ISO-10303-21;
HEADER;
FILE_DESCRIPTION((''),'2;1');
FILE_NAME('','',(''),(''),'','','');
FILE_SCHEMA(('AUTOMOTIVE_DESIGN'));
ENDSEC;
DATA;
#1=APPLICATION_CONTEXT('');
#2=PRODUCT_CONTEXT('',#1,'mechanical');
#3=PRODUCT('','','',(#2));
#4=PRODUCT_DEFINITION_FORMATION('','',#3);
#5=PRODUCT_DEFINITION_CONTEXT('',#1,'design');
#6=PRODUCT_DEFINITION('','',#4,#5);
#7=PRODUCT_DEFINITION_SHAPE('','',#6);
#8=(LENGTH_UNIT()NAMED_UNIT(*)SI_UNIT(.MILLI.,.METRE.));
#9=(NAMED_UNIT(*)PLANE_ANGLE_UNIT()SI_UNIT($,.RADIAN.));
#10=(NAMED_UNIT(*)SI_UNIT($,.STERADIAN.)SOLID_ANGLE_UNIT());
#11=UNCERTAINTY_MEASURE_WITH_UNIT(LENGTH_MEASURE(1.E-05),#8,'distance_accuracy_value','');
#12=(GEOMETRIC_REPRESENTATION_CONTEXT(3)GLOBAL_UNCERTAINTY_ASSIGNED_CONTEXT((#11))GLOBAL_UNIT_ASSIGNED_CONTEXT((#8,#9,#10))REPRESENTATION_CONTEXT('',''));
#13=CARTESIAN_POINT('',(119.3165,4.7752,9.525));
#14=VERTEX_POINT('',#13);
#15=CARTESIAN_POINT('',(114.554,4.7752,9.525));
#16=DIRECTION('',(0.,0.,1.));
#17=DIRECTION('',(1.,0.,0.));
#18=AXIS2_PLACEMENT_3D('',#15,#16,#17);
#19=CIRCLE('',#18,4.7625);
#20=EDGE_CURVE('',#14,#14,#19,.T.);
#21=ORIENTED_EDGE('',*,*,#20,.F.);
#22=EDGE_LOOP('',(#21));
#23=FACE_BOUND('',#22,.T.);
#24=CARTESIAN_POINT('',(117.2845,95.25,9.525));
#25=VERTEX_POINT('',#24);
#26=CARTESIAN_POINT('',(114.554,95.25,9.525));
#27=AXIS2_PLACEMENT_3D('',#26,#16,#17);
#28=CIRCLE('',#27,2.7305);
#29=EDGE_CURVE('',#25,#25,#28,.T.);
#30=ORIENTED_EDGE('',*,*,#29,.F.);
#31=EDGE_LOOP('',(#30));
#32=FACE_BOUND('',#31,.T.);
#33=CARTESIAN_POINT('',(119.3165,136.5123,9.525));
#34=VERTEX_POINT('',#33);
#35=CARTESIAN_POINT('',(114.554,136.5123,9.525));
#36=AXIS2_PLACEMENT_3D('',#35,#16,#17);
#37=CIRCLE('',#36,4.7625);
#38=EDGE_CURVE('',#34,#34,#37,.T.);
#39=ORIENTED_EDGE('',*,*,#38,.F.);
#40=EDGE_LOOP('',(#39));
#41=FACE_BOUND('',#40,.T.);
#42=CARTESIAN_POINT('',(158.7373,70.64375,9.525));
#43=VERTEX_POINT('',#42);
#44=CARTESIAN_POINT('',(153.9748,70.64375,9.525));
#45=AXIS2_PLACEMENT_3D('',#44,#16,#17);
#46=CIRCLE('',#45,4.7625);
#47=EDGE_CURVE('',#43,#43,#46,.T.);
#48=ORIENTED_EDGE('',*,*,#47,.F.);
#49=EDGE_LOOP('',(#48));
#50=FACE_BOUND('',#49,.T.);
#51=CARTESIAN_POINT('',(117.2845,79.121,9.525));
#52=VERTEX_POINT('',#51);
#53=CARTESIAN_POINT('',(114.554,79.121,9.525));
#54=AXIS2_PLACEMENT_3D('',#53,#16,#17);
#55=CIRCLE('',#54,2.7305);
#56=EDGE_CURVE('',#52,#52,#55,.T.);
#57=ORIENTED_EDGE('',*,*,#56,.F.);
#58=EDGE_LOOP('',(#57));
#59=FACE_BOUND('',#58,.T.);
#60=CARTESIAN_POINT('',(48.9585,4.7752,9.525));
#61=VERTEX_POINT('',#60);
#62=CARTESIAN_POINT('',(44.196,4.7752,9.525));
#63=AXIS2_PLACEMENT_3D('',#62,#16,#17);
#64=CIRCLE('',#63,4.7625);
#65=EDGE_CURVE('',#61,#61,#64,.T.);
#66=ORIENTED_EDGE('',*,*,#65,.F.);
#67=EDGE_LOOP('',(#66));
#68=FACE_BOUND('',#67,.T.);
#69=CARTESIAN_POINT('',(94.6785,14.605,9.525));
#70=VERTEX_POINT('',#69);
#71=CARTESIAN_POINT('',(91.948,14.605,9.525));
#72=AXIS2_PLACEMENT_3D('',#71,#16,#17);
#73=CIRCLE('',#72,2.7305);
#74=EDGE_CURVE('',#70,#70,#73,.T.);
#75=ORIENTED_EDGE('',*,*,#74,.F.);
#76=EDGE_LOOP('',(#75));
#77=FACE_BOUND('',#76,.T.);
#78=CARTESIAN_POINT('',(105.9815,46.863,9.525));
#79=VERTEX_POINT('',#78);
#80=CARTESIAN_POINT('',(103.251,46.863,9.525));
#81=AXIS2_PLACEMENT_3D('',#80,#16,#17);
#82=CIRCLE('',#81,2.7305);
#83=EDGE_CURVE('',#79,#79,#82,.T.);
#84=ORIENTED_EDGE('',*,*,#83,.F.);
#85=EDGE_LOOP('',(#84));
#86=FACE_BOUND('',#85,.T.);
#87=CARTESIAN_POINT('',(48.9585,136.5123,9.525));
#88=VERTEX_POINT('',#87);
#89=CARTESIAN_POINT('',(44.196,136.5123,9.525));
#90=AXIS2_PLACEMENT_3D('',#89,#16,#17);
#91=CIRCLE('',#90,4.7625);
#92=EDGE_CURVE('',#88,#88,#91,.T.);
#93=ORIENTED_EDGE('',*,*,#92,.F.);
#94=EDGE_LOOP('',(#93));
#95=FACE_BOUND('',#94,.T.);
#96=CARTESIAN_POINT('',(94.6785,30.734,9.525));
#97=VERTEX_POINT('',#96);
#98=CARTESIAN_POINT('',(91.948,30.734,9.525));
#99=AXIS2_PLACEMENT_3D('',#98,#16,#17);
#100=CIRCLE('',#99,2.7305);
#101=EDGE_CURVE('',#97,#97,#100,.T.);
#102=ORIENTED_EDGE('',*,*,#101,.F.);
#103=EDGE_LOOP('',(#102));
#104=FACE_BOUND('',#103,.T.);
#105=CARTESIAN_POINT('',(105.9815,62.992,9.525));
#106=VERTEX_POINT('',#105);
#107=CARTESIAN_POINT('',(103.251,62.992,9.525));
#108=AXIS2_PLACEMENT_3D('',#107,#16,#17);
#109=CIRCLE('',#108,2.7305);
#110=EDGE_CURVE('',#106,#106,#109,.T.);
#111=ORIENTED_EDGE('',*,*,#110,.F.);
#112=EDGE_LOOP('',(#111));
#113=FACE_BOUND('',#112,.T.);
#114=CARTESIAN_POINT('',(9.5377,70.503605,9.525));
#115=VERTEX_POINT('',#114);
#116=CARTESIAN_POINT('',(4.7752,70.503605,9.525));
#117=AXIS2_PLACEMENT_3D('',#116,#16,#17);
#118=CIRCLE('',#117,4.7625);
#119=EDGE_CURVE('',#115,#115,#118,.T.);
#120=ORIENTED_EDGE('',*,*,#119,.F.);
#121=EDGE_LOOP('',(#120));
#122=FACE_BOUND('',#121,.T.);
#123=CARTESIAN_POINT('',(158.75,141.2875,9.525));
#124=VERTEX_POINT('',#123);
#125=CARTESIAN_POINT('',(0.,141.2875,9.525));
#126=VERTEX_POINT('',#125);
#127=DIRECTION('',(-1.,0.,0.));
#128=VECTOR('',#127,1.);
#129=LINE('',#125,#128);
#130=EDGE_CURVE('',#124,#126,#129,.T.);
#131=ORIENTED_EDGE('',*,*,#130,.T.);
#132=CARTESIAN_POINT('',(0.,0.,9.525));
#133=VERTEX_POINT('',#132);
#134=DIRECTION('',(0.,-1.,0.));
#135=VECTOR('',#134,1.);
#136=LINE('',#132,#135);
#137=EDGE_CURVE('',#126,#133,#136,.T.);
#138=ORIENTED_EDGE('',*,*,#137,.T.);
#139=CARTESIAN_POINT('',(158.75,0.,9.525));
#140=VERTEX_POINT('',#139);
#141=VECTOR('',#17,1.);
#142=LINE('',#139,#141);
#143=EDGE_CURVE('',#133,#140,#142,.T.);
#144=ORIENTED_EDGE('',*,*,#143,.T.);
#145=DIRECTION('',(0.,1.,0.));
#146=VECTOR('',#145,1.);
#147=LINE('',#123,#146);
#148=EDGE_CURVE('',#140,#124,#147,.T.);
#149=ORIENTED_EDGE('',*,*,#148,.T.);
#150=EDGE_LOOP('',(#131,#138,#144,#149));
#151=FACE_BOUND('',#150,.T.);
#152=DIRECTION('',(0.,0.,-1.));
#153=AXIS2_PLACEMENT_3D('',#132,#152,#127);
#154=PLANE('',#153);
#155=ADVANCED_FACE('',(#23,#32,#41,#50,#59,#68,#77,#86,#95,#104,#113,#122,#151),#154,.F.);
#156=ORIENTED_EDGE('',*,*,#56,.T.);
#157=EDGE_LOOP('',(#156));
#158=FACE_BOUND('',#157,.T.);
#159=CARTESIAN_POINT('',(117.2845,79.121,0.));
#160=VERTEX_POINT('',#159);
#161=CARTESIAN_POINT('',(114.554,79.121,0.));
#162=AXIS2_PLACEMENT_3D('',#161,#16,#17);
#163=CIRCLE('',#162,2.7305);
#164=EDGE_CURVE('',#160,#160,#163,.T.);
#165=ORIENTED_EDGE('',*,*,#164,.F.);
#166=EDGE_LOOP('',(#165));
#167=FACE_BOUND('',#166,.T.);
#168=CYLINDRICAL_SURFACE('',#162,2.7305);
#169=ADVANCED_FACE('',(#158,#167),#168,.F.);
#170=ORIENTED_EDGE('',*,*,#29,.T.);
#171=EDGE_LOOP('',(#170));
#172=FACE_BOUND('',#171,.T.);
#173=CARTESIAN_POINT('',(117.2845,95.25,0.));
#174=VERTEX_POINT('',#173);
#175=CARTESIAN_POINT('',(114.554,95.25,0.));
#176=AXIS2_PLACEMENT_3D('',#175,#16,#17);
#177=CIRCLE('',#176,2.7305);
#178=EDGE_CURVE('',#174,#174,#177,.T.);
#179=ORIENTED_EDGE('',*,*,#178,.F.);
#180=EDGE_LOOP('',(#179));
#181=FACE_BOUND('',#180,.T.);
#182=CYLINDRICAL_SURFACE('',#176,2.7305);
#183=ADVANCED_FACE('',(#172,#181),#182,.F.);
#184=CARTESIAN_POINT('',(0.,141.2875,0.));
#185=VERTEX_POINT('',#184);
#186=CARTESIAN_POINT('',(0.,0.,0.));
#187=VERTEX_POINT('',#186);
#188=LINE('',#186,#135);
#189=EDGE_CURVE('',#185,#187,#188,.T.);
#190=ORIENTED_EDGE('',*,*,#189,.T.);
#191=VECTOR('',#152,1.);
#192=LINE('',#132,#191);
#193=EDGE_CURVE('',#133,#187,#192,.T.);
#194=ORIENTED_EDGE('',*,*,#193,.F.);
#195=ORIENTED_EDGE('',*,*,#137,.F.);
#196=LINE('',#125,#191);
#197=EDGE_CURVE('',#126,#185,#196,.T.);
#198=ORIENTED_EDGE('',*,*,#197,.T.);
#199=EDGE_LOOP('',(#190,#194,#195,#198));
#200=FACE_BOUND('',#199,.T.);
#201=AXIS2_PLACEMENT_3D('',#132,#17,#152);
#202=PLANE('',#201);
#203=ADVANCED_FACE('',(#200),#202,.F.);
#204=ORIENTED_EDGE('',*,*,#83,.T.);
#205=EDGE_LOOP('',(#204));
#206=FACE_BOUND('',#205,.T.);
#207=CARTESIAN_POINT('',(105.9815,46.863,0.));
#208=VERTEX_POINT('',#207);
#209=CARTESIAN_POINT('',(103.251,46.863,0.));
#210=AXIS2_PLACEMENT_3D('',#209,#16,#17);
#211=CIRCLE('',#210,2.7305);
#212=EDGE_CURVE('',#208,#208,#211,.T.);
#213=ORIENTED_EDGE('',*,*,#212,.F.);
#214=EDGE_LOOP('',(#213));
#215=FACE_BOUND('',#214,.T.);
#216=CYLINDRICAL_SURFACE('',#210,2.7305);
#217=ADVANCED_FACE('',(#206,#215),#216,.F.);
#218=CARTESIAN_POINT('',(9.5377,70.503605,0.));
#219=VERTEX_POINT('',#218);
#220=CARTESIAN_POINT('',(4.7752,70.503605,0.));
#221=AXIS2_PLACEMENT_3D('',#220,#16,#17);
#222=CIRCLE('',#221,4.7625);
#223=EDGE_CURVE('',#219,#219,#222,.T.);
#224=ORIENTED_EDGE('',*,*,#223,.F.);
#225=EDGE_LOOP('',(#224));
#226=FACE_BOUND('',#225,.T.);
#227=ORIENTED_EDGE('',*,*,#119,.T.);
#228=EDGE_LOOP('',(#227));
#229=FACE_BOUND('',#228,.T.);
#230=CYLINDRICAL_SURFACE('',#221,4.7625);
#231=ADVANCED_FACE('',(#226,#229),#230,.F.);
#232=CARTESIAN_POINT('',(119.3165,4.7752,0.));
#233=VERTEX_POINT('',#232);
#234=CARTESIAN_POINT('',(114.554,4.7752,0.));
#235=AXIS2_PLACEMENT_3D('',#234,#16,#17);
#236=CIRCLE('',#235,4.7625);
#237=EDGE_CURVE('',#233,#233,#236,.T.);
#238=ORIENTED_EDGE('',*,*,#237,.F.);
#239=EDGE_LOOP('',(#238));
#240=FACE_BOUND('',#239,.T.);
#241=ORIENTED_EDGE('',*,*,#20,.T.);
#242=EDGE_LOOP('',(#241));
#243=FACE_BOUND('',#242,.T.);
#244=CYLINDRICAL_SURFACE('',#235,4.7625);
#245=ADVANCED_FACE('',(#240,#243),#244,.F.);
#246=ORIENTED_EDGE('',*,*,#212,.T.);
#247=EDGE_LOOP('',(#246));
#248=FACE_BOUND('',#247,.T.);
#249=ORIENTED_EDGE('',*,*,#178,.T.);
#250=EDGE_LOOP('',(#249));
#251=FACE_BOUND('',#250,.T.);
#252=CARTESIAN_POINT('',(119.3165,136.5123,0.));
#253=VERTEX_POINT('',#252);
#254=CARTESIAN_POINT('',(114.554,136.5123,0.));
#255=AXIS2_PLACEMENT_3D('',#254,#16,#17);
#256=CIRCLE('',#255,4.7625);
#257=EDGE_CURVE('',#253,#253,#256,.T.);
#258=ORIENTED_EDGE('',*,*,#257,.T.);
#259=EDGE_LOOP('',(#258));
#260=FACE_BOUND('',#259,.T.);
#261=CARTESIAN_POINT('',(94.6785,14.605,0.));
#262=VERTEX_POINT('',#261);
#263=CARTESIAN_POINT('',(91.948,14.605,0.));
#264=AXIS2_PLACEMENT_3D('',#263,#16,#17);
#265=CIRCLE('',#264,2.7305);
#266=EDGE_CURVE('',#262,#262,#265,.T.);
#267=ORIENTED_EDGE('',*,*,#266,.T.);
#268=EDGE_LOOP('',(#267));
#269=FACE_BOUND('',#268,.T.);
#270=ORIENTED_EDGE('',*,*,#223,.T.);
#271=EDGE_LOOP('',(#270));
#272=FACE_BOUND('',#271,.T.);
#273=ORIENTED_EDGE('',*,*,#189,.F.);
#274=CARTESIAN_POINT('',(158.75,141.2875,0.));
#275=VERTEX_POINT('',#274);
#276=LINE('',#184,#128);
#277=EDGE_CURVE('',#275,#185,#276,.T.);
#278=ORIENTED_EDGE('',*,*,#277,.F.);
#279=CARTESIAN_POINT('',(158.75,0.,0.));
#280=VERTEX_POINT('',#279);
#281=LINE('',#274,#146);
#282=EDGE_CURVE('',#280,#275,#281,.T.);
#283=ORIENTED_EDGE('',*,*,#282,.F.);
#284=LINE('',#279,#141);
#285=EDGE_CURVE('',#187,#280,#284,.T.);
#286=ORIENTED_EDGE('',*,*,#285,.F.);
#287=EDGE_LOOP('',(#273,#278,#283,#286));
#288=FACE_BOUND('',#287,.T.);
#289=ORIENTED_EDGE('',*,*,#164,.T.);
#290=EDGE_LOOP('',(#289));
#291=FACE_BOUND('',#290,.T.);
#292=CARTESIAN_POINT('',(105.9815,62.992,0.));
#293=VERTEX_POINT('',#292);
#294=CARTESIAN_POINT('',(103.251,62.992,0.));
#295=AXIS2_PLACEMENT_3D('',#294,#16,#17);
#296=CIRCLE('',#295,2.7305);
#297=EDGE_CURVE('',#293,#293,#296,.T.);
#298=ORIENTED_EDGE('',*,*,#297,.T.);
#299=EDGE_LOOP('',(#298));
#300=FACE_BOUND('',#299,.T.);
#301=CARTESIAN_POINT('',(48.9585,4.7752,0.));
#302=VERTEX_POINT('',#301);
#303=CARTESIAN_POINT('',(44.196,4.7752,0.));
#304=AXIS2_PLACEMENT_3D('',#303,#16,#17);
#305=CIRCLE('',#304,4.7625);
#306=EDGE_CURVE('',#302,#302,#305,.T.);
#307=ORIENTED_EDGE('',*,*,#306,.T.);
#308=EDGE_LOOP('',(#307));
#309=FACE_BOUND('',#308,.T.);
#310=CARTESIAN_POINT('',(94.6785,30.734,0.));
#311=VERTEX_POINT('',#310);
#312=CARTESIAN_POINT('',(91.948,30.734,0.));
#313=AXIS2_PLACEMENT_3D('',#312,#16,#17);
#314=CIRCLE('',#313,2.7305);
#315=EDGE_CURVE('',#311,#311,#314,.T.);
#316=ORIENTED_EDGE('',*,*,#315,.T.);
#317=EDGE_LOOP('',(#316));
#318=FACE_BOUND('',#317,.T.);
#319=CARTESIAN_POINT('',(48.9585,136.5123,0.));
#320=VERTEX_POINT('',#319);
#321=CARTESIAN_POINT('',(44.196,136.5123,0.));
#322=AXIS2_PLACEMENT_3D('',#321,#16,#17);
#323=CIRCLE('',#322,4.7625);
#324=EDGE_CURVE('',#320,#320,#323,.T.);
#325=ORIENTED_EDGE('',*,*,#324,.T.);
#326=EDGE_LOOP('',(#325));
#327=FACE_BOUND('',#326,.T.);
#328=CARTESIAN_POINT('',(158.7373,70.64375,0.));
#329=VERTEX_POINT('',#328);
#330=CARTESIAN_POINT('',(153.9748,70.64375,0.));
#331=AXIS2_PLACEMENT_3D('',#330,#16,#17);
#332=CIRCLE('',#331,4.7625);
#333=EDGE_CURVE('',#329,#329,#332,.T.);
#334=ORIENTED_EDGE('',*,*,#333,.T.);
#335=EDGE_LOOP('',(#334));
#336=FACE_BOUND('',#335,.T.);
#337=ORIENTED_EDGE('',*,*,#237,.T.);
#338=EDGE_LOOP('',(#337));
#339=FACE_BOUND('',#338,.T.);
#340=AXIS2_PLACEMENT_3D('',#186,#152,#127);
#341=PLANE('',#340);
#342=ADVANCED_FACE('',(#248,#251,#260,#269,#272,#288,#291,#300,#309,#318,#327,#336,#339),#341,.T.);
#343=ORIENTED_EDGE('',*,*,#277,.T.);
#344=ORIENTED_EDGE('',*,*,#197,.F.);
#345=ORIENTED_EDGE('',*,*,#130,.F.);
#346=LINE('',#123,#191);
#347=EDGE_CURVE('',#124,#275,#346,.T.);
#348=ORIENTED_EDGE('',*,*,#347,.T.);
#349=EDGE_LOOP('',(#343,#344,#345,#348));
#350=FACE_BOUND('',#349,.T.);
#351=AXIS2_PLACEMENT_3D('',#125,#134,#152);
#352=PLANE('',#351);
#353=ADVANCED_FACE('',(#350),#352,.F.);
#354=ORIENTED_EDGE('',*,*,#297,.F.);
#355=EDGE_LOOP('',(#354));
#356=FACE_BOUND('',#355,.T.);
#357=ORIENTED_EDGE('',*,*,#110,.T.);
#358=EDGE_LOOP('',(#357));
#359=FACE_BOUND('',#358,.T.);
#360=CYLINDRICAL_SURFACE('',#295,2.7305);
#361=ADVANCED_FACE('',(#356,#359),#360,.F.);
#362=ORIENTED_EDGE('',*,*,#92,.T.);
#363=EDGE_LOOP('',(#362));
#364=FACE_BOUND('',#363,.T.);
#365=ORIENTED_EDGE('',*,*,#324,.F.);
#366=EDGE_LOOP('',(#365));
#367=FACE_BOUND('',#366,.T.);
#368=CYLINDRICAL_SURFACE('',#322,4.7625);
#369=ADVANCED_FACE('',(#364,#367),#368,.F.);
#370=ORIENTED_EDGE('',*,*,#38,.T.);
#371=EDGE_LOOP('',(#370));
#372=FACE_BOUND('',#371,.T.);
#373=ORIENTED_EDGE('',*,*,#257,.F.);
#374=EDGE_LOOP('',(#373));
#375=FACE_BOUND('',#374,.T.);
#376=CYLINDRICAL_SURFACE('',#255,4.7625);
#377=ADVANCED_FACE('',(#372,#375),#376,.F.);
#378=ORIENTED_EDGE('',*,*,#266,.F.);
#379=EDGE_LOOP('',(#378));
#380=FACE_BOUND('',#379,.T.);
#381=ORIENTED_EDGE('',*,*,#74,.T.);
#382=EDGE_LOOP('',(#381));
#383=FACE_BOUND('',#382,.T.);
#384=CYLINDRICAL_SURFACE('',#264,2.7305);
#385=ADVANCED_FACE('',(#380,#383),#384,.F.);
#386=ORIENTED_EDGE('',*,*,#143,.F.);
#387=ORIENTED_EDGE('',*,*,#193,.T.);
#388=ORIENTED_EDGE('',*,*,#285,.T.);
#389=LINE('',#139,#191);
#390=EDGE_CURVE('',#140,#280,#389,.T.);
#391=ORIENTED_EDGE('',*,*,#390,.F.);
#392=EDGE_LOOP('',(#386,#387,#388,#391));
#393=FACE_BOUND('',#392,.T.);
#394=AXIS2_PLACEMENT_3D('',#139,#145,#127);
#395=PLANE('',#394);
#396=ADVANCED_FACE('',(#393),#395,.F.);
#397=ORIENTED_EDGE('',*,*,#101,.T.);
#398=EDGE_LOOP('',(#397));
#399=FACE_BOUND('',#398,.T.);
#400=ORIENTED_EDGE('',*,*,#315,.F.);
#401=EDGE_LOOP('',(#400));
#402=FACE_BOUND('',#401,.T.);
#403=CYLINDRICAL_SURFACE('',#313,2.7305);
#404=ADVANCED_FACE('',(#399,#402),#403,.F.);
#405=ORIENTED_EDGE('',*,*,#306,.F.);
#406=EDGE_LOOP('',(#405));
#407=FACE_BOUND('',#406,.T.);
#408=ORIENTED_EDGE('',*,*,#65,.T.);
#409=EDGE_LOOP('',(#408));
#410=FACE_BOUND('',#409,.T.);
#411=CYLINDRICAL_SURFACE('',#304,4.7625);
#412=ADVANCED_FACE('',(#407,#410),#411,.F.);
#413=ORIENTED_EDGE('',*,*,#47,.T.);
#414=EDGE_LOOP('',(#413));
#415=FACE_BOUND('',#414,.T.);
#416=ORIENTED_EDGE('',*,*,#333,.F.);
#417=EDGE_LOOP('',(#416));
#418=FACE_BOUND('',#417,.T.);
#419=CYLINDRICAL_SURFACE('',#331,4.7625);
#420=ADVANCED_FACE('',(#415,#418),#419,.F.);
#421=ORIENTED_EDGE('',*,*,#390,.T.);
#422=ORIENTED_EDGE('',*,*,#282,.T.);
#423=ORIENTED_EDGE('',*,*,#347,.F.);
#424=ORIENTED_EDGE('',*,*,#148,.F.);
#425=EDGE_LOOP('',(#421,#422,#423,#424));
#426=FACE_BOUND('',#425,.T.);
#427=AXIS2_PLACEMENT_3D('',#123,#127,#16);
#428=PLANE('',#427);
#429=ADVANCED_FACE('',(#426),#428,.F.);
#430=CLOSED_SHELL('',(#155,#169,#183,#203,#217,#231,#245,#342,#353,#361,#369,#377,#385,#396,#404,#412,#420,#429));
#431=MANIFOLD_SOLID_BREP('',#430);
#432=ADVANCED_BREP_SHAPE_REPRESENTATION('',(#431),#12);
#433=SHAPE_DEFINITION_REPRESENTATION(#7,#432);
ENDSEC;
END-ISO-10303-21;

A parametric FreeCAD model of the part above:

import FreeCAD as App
import Part
import Sketcher

V = App.Vector
Q = App.Units.Quantity

doc = App.newDocument("Part")
body = doc.addObject("PartDesign::Body", "Body")

# Sketch on XY plane
sketch1 = body.newObject("Sketcher::SketchObject", "Sketch")
sketch1.AttachmentSupport = (doc.getObject("XY_Plane"), [""])
sketch1.MapMode = "FlatFace"
sketch1.addGeometry([
    Part.LineSegment(V(0, 141, 0), V(0, 0, 0)),
    Part.LineSegment(V(0, 0, 0), V(159, 0, 0)),
    Part.LineSegment(V(159, 0, 0), V(159, 141, 0)),
    Part.LineSegment(V(159, 141, 0), V(0, 141, 0)),
], False)
sketch1.addConstraint([
    Sketcher.Constraint("Coincident", 0, 2, 1, 1),
    Sketcher.Constraint("Coincident", 1, 2, 2, 1),
    Sketcher.Constraint("Coincident", 2, 2, 3, 1),
    Sketcher.Constraint("Coincident", 3, 2, 0, 1),
    Sketcher.Constraint("Vertical", 0),
    Sketcher.Constraint("Horizontal", 1),
    Sketcher.Constraint("Vertical", 2),
    Sketcher.Constraint("Horizontal", 3),
    Sketcher.Constraint("Coincident", 0, 2, -1, 1),
    Sketcher.Constraint("DistanceX", 1, 1, 1, 2, Q("6.25 in")),
    Sketcher.Constraint("DistanceY", 0, 2, 0, 1, Q("5.5625 in")),
])
pad1 = body.newObject("PartDesign::Pad", "Pad")
pad1.Profile = sketch1
pad1.Length = Q("0.375 in")

# Sketch on XY plane
sketch2 = body.newObject("Sketcher::SketchObject", "Sketch001")
sketch2.AttachmentSupport = (doc.getObject("XY_Plane"), [""])
sketch2.MapMode = "FlatFace"
sketch2.AttachmentOffset = App.Placement(V(0, 0, 0.375 * 25.4), App.Rotation())
sketch2.addGeometry([
    Part.Circle(V(4.8, 70.5, 0), V(0, 0, 1), 4.8),  # 0
    Part.Circle(V(154, 70.6, 0), V(0, 0, 1), 4.8),  # 1
    Part.Circle(V(44.2, 136.5, 0), V(0, 0, 1), 4.8),  # 2
    Part.Circle(V(114.6, 136.5, 0), V(0, 0, 1), 4.8),  # 3
    Part.Circle(V(44.2, 4.8, 0), V(0, 0, 1), 4.8),  # 4
    Part.Circle(V(114.6, 4.8, 0), V(0, 0, 1), 4.8),  # 5
    Part.Circle(V(91.9, 14.6, 0), V(0, 0, 1), 2.7),  # 6
    Part.Circle(V(91.9, 30.7, 0), V(0, 0, 1), 2.7),  # 7
    Part.Circle(V(103.3, 46.9, 0), V(0, 0, 1), 2.7),  # 8
    Part.Circle(V(103.3, 63, 0), V(0, 0, 1), 2.7),  # 9
    Part.Circle(V(114.6, 79.1, 0), V(0, 0, 1), 2.7),  # 10
    Part.Circle(V(114.6, 95.2, 0), V(0, 0, 1), 2.7),  # 11
], False)
sketch2.addConstraint([
    Sketcher.Constraint("Equal", 0, 1),
    Sketcher.Constraint("Equal", 1, 2),
    Sketcher.Constraint("Equal", 2, 3),
    Sketcher.Constraint("Equal", 3, 4),
    Sketcher.Constraint("Equal", 4, 5),
    Sketcher.Constraint("Equal", 6, 7),
    Sketcher.Constraint("Equal", 7, 8),
    Sketcher.Constraint("Equal", 8, 9),
    Sketcher.Constraint("Equal", 9, 10),
    Sketcher.Constraint("Equal", 10, 11),
    Sketcher.Constraint("Horizontal", 2, 3, 3, 3),
    Sketcher.Constraint("Horizontal", 4, 3, 5, 3),
    Sketcher.Constraint("Vertical", 2, 3, 4, 3),
    Sketcher.Constraint("Vertical", 3, 3, 5, 3),
    Sketcher.Constraint("Vertical", 6, 3, 7, 3),
    Sketcher.Constraint("Vertical", 8, 3, 9, 3),
    Sketcher.Constraint("Vertical", 5, 3, 10, 3),
    Sketcher.Constraint("Vertical", 10, 3, 11, 3),
    Sketcher.Constraint("Diameter", 0, Q("0.375 in")),
    Sketcher.Constraint("Diameter", 6, Q("0.215 in")),
    Sketcher.Constraint("DistanceX", -1, 1, 2, 3, Q("1.74 in")),
    Sketcher.Constraint("DistanceX", -1, 1, 3, 3, Q("4.51 in")),
    Sketcher.Constraint("DistanceX", -1, 1, 6, 3, Q("3.62 in")),
    Sketcher.Constraint("DistanceY", -1, 1, 7, 3, Q("1.21 in")),
    Sketcher.Constraint("DistanceY", -1, 1, 9, 3, Q("2.48 in")),
    Sketcher.Constraint("DistanceY", -1, 1, 11, 3, Q("3.75 in")),
    Sketcher.Constraint("DistanceY", 6, 3, 8, 3, Q("1.27 in")),
    Sketcher.Constraint("DistanceY", 8, 3, 10, 3, Q("1.27 in")),
    Sketcher.Constraint("DistanceX", -1, 1, 0, 3, Q("0.188 in")),
    Sketcher.Constraint("DistanceX", -1, 1, 1, 3, Q("6.062 in")),
    Sketcher.Constraint("DistanceY", -1, 1, 1, 3, Q("2.78125 in")),
    Sketcher.Constraint("DistanceY", -1, 1, 4, 3, Q("0.188 in")),
    Sketcher.Constraint("DistanceY", -1, 1, 6, 3, Q("0.575 in")),
    Sketcher.Constraint("DistanceX", -1, 1, 8, 3, Q("4.065 in")),
    Sketcher.Constraint("DistanceY", -1, 1, 2, 3, Q("5.3745 in")),
    Sketcher.Constraint("DistanceY", -1, 1, 0, 3, Q("70.503605 mm")),
])
pocket1 = body.newObject("PartDesign::Pocket", "Pocket")
pocket1.Profile = sketch2
pocket1.Length = Q("0.375 in")

doc.recompute()
